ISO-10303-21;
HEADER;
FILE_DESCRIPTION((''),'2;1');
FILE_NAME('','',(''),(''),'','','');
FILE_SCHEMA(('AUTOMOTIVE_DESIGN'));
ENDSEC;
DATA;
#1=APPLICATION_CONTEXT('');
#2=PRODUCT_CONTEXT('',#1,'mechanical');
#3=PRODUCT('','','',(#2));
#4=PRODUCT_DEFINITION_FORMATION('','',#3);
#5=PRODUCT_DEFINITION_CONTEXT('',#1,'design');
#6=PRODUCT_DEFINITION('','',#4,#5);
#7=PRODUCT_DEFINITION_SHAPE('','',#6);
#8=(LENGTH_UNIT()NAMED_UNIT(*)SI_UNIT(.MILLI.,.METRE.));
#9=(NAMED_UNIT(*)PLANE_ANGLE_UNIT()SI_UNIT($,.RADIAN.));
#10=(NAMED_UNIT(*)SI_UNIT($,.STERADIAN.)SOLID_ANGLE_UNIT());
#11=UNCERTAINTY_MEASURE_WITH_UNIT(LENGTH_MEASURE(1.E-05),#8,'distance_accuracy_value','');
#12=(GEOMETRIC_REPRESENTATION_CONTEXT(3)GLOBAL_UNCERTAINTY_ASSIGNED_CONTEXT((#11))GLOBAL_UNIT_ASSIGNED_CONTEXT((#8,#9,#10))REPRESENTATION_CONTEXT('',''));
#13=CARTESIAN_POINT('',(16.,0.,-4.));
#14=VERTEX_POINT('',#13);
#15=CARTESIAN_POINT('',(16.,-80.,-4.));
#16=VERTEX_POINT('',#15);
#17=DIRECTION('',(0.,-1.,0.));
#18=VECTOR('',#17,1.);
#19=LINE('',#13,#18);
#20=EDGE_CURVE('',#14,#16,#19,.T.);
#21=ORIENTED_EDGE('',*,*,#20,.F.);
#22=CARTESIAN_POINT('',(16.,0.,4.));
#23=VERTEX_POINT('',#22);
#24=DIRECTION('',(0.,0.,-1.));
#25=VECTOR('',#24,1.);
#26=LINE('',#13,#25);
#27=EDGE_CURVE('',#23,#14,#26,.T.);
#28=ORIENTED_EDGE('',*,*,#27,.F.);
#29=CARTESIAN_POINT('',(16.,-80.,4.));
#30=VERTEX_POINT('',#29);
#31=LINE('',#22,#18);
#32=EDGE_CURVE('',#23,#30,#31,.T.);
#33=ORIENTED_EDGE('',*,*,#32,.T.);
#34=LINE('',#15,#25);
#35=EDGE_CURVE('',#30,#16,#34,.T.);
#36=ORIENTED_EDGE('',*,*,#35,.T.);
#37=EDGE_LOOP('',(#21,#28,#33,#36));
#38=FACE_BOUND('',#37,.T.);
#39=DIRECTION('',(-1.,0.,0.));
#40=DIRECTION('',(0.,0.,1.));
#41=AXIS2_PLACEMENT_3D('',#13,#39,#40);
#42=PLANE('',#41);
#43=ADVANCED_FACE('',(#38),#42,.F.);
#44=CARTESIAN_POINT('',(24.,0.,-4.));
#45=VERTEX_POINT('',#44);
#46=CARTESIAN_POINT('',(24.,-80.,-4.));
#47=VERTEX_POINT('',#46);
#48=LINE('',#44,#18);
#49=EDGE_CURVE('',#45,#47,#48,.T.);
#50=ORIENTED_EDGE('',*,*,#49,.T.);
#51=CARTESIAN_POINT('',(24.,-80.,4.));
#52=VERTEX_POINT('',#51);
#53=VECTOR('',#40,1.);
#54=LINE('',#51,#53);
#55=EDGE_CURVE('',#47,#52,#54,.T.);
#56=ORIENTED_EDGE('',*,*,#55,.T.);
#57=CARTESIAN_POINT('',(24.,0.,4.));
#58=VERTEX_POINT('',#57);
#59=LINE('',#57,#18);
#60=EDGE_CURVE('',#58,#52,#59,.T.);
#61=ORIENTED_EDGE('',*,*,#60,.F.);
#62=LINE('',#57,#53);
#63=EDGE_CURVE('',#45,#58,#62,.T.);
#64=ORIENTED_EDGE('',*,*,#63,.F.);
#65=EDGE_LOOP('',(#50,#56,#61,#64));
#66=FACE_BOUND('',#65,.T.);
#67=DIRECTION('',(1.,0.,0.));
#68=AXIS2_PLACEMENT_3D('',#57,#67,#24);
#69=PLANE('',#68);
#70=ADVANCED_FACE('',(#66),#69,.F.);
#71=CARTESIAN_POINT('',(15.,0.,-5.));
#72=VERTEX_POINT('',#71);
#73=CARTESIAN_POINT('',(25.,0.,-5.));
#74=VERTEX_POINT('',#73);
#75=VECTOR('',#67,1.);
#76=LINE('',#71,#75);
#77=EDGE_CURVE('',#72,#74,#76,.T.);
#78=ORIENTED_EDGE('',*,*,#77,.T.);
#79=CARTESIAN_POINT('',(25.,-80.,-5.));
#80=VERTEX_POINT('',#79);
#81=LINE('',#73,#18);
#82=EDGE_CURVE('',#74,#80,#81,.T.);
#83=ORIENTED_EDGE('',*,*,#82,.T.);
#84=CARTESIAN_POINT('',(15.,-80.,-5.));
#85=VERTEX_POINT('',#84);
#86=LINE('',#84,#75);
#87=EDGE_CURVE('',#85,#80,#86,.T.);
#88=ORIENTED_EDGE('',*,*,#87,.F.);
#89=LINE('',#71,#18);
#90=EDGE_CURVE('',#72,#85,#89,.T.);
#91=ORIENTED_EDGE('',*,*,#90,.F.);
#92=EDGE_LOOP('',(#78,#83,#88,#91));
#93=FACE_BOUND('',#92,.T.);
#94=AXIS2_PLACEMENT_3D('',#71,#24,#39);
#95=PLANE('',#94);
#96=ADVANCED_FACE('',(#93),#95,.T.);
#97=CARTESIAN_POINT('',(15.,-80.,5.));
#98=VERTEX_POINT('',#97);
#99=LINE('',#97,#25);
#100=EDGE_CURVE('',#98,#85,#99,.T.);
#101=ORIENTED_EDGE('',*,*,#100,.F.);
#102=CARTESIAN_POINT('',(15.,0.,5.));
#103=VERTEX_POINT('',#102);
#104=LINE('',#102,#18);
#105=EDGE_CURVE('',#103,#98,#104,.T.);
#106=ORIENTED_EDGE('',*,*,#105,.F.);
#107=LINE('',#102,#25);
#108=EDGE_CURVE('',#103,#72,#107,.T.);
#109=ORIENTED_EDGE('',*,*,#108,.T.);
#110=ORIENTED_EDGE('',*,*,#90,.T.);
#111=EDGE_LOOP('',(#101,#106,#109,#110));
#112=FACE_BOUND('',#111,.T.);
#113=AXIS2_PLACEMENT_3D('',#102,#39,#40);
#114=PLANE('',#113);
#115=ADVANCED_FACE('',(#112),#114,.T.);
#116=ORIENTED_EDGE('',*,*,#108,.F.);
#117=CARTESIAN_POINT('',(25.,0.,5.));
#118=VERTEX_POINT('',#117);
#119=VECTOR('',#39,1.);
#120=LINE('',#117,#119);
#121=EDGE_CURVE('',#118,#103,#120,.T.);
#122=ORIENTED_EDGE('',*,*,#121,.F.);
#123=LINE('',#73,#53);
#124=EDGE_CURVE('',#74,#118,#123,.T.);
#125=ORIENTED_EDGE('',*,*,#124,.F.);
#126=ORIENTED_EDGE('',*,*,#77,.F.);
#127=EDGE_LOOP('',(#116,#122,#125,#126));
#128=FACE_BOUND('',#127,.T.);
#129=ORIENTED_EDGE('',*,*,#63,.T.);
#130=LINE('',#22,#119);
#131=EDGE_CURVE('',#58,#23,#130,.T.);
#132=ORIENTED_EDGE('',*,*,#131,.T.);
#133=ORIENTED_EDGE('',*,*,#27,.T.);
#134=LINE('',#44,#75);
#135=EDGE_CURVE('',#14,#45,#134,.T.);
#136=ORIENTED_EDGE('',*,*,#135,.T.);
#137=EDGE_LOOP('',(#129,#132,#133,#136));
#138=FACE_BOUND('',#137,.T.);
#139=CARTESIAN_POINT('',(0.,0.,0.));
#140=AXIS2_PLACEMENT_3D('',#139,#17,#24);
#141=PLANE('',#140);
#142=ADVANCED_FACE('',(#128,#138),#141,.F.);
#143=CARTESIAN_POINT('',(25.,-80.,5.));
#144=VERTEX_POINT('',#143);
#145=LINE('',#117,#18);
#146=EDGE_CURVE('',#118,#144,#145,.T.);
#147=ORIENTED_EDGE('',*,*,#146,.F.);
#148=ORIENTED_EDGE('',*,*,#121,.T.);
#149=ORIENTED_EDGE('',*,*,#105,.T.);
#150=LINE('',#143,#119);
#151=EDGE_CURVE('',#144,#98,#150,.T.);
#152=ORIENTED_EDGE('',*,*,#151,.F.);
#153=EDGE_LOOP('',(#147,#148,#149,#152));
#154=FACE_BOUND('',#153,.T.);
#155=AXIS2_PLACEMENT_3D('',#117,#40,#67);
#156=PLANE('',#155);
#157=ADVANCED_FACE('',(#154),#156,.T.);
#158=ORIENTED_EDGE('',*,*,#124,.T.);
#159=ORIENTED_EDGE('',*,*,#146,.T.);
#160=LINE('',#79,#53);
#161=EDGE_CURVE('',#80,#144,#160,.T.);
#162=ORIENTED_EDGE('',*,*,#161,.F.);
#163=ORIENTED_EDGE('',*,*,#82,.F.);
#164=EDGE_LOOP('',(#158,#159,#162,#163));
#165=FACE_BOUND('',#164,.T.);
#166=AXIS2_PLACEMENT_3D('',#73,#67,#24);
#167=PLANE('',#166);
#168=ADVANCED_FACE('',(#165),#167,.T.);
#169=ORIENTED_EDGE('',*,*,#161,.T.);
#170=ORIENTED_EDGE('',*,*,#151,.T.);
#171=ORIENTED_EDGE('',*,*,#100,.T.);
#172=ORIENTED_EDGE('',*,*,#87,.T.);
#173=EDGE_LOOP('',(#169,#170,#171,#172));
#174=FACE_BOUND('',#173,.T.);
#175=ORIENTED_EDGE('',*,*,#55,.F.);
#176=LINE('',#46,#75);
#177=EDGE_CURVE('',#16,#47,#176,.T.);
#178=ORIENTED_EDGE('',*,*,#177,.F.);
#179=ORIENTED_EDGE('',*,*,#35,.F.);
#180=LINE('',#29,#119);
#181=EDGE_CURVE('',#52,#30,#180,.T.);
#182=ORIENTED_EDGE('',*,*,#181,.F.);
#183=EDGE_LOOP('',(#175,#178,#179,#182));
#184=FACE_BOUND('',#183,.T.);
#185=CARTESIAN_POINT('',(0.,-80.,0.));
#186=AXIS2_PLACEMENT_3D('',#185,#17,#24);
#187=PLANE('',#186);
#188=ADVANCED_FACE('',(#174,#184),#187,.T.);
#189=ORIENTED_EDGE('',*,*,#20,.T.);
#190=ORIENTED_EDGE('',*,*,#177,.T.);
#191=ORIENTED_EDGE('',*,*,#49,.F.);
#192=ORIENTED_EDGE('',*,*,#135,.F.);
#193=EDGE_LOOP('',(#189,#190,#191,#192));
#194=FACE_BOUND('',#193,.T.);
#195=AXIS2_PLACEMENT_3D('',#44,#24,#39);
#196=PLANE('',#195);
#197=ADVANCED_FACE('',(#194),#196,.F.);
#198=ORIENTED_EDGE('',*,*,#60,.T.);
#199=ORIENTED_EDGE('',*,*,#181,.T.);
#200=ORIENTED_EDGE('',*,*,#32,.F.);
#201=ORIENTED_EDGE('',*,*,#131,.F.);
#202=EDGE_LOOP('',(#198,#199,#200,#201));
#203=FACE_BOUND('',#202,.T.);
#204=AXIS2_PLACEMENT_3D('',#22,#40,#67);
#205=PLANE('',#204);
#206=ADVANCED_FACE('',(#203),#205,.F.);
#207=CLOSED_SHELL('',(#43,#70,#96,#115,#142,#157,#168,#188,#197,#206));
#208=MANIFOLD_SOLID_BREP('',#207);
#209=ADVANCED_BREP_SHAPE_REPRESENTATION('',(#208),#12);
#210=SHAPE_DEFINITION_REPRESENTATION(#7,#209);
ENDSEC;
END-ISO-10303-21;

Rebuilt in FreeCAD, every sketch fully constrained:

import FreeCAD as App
import Part
import Sketcher
from FreeCAD import Vector
Q = App.Units.Quantity


def add_polygon(sketch, points):
    """Adds a closed chain of lines whose ends are joined by coincident constraints."""
    first, n = sketch.GeometryCount, len(points)
    for a, b in zip(points, points[1:] + points[:1]):
        sketch.addGeometry(Part.LineSegment(App.Vector(*a, 0), App.Vector(*b, 0)), False)
    for i in range(n):
        sketch.addConstraint(Sketcher.Constraint("Coincident", first + i, 2, first + (i + 1) % n, 1))

doc = App.newDocument("Part")
body = doc.addObject("PartDesign::Body", "Body")

# Sketch on XZ plane
sketch1 = body.newObject("Sketcher::SketchObject", "Sketch")
sketch1.AttachmentSupport = (doc.getObject("XZ_Plane"), [""])
sketch1.MapMode = "FlatFace"
sketch1.AttachmentOffset = App.Placement(Vector(0, 0, 80), App.Rotation())
add_polygon(sketch1, [(15, 5), (15, -5), (25, -5), (25, 5)])  # lines 0-3
add_polygon(sketch1, [(24, -4), (16, -4), (16, 4), (24, 4)])  # lines 4-7
sketch1.addConstraint([
    Sketcher.Constraint("Vertical", 0),
    Sketcher.Constraint("Horizontal", 1),
    Sketcher.Constraint("Vertical", 2),
    Sketcher.Constraint("Horizontal", 3),
    Sketcher.Constraint("Horizontal", 4),
    Sketcher.Constraint("Vertical", 5),
    Sketcher.Constraint("Horizontal", 6),
    Sketcher.Constraint("Vertical", 7),
    Sketcher.Constraint("Equal", 3, 0),
    Sketcher.Constraint("Equal", 6, 5),
    Sketcher.Constraint("DistanceX", 1, 1, 1, 2, Q("10 mm")),
    Sketcher.Constraint("DistanceX", 4, 2, 4, 1, Q("8 mm")),
    Sketcher.Constraint("DistanceX", -1, 1, 0, 2, Q("15 mm")),
    Sketcher.Constraint("DistanceY", 0, 2, -1, 1, Q("5 mm")),
    Sketcher.Constraint("DistanceX", -1, 1, 4, 2, Q("16 mm")),
    Sketcher.Constraint("DistanceY", 4, 2, -1, 1, Q("4 mm")),
])
pad1 = body.newObject("PartDesign::Pad", "Pad")
pad1.Profile = sketch1
pad1.Length = 80
pad1.Reversed = True

doc.recompute()
